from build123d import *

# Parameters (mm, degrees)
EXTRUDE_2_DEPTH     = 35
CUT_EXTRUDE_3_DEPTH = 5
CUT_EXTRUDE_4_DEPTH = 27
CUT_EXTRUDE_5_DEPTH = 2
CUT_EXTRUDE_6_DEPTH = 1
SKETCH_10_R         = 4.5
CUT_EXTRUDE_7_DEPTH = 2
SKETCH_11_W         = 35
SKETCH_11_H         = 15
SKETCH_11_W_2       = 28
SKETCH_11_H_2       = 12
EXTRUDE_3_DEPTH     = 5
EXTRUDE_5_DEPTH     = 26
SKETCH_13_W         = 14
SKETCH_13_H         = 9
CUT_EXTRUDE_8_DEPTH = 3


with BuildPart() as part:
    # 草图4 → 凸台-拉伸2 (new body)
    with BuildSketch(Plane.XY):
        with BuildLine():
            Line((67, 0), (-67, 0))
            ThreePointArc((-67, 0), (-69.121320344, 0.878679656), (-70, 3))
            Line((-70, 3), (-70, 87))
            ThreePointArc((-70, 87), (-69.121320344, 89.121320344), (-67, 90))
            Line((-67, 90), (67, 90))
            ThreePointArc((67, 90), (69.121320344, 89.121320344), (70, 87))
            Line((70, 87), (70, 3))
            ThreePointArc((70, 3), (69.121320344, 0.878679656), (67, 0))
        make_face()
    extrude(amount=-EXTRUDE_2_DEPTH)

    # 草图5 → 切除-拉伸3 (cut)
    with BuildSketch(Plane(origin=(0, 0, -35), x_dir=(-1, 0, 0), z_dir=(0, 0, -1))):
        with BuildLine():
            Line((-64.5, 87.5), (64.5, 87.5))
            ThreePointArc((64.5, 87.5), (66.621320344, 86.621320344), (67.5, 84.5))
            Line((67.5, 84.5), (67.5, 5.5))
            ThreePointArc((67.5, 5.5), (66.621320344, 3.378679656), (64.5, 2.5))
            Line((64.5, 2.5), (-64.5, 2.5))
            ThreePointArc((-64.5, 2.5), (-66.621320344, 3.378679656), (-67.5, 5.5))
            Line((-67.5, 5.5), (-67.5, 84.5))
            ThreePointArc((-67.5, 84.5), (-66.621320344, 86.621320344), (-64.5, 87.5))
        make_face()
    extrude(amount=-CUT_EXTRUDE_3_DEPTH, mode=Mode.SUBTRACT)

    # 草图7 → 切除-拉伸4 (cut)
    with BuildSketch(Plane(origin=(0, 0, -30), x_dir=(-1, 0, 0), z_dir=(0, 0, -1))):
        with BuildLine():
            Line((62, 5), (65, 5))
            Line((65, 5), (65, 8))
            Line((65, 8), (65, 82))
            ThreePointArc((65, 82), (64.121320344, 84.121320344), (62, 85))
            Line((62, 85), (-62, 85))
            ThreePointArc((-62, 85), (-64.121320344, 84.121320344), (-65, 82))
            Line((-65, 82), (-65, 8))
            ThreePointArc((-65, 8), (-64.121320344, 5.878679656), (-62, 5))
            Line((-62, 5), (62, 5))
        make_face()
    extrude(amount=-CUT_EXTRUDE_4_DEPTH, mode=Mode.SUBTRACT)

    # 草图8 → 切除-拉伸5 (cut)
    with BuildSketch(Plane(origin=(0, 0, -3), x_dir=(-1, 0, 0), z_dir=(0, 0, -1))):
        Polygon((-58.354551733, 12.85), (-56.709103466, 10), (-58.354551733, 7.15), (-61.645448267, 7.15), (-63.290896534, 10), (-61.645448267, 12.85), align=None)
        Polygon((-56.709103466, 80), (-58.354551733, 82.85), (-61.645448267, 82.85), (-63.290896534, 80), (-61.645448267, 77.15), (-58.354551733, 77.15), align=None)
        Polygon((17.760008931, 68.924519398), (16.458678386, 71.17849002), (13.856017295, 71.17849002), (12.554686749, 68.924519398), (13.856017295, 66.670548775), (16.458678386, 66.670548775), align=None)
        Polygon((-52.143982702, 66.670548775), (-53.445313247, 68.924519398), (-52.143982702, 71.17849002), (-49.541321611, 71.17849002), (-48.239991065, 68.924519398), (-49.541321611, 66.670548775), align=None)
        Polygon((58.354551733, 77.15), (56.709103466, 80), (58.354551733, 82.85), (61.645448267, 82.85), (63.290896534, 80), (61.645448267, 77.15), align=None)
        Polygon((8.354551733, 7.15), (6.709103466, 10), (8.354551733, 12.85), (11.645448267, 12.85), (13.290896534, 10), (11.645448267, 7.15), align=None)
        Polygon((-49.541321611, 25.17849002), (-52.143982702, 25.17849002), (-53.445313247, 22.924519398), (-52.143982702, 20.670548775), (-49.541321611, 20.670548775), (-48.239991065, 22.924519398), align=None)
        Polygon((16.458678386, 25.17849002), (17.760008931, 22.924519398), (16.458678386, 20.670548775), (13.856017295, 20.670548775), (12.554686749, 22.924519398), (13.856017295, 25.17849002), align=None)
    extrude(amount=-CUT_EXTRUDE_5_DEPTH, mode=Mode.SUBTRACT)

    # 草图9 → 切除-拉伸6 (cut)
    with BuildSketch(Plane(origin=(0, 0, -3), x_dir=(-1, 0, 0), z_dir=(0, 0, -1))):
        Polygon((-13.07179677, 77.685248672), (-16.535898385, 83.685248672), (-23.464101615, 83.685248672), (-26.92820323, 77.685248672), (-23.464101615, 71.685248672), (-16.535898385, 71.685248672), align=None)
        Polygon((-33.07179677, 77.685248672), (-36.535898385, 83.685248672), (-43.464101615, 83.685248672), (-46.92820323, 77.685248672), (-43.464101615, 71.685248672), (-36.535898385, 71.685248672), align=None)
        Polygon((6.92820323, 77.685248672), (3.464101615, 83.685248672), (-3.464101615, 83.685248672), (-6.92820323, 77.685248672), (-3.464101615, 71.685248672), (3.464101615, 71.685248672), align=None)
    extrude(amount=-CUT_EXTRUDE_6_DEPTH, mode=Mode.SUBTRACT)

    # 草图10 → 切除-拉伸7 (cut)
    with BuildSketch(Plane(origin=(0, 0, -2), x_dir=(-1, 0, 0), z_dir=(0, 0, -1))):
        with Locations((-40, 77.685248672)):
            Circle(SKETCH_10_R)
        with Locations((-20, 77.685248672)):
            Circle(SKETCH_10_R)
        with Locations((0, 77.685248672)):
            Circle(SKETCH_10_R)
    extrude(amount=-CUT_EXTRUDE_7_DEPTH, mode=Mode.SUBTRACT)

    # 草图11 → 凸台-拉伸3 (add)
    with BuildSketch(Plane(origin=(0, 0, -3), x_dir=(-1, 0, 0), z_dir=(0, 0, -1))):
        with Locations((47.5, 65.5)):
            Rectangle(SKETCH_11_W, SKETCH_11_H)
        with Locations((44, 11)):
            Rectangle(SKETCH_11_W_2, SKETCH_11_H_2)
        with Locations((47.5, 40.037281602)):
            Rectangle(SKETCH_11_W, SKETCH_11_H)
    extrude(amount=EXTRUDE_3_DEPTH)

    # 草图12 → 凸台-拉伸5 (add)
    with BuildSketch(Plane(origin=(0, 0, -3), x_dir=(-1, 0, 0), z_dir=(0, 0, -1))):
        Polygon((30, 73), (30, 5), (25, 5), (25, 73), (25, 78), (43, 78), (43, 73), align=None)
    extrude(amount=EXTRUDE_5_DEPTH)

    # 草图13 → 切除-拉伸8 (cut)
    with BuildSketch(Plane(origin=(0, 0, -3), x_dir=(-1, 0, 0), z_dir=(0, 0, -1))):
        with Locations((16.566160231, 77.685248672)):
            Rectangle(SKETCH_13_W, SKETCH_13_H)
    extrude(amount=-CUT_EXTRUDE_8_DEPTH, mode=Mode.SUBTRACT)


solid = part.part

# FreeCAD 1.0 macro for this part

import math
import FreeCAD as App
import Part
import Sketcher
Q = App.Units.Quantity

doc = App.newDocument("Part")
body = doc.addObject("PartDesign::Body", "Body")

sketch1 = body.newObject("Sketcher::SketchObject", "Sketch")
sketch1.AttachmentSupport = (doc.getObject("XY_Plane"), [""])
sketch1.MapMode = "FlatFace"
sketch1.addGeometry([
    Part.LineSegment(App.Vector(-67, 0, 0), App.Vector(67, 0, 0)),
    Part.ArcOfCircle(Part.Circle(App.Vector(67, 3, 0), App.Vector(0, 0, 1), 3), math.radians(-90), math.radians(0)),
    Part.LineSegment(App.Vector(70, 3, 0), App.Vector(70, 87, 0)),
    Part.ArcOfCircle(Part.Circle(App.Vector(67, 87, 0), App.Vector(0, 0, 1), 3), math.radians(0), math.radians(90)),
    Part.LineSegment(App.Vector(67, 90, 0), App.Vector(-67, 90, 0)),
    Part.ArcOfCircle(Part.Circle(App.Vector(-67, 87, 0), App.Vector(0, 0, 1), 3), math.radians(90), math.radians(180)),
    Part.LineSegment(App.Vector(-70, 87, 0), App.Vector(-70, 3, 0)),
    Part.ArcOfCircle(Part.Circle(App.Vector(-67, 3, 0), App.Vector(0, 0, 1), 3), math.radians(180), math.radians(270)),
], False)
sketch1.addConstraint([
    Sketcher.Constraint("Tangent", 0, 2, 1, 1),
    Sketcher.Constraint("Tangent", 1, 2, 2, 1),
    Sketcher.Constraint("Tangent", 2, 2, 3, 1),
    Sketcher.Constraint("Tangent", 3, 2, 4, 1),
    Sketcher.Constraint("Tangent", 4, 2, 5, 1),
    Sketcher.Constraint("Tangent", 5, 2, 6, 1),
    Sketcher.Constraint("Tangent", 6, 2, 7, 1),
    Sketcher.Constraint("Tangent", 7, 2, 0, 1),
    Sketcher.Constraint("Horizontal", 0),
    Sketcher.Constraint("Vertical", 2),
    Sketcher.Constraint("Horizontal", 4),
    Sketcher.Constraint("Vertical", 6),
    Sketcher.Constraint("Equal", 1, 3),
    Sketcher.Constraint("Equal", 3, 5),
    Sketcher.Constraint("Equal", 5, 7),
    Sketcher.Constraint("Symmetric", 0, 2, 7, 2, -1, 1),
    Sketcher.Constraint("Radius", 1, 3.0),
    Sketcher.Constraint("DistanceX", 0, 1, 0, 2, 134.0),
    Sketcher.Constraint("DistanceY", 2, 1, 2, 2, 84.0),
])
pad1 = body.newObject("PartDesign::Pad", "Pad")
pad1.Profile = sketch1
pad1.Length = 35
pad1.Reversed = True

sketch2 = body.newObject("Sketcher::SketchObject", "Sketch001")
sketch2.AttachmentSupport = (doc.getObject("XY_Plane"), [""])
sketch2.MapMode = "FlatFace"
sketch2.AttachmentOffset = App.Placement(App.Vector(0, 0, -35), App.Rotation())
sketch2.addGeometry([
    Part.LineSegment(App.Vector(-64.5, 87.5, 0), App.Vector(64.5, 87.5, 0)),
    Part.ArcOfCircle(Part.Circle(App.Vector(64.5, 84.5, 0), App.Vector(0, 0, 1), 3), math.radians(0), math.radians(90)),
    Part.LineSegment(App.Vector(67.5, 84.5, 0), App.Vector(67.5, 5.5, 0)),
    Part.ArcOfCircle(Part.Circle(App.Vector(64.5, 5.5, 0), App.Vector(0, 0, 1), 3), math.radians(-90), math.radians(0)),
    Part.LineSegment(App.Vector(64.5, 2.5, 0), App.Vector(-64.5, 2.5, 0)),
    Part.ArcOfCircle(Part.Circle(App.Vector(-64.5, 5.5, 0), App.Vector(0, 0, 1), 3), math.radians(180), math.radians(270)),
    Part.LineSegment(App.Vector(-67.5, 5.5, 0), App.Vector(-67.5, 84.5, 0)),
    Part.ArcOfCircle(Part.Circle(App.Vector(-64.5, 84.5, 0), App.Vector(0, 0, 1), 3), math.radians(90), math.radians(180)),
], False)
sketch2.addConstraint([
    Sketcher.Constraint("Tangent", 0, 2, 1, 2),
    Sketcher.Constraint("Tangent", 1, 1, 2, 1),
    Sketcher.Constraint("Tangent", 2, 2, 3, 2),
    Sketcher.Constraint("Tangent", 3, 1, 4, 1),
    Sketcher.Constraint("Tangent", 4, 2, 5, 2),
    Sketcher.Constraint("Tangent", 5, 1, 6, 1),
    Sketcher.Constraint("Tangent", 6, 2, 7, 2),
    Sketcher.Constraint("Tangent", 7, 1, 0, 1),
    Sketcher.Constraint("Horizontal", 0),
    Sketcher.Constraint("Vertical", 2),
    Sketcher.Constraint("Horizontal", 4),
    Sketcher.Constraint("Vertical", 6),
    Sketcher.Constraint("Equal", 1, 3),
    Sketcher.Constraint("Equal", 3, 5),
    Sketcher.Constraint("Equal", 5, 7),
    Sketcher.Constraint("Radius", 1, 3.0),
    Sketcher.Constraint("DistanceX", 0, 1, 0, 2, 129.0),
    Sketcher.Constraint("DistanceY", 2, 2, 2, 1, 79.0),
    Sketcher.Constraint("DistanceX", -1, 1, 1, 3, 64.5),
    Sketcher.Constraint("DistanceY", -1, 1, 1, 3, 84.5),
])
pocket1 = body.newObject("PartDesign::Pocket", "Pocket")
pocket1.Profile = sketch2
pocket1.Length = 5
pocket1.Reversed = True

sketch3 = body.newObject("Sketcher::SketchObject", "Sketch002")
sketch3.AttachmentSupport = (doc.getObject("XY_Plane"), [""])
sketch3.MapMode = "FlatFace"
sketch3.AttachmentOffset = App.Placement(App.Vector(0, 0, -30), App.Rotation())
sketch3.addGeometry([
    Part.LineSegment(App.Vector(-65, 5, 0), App.Vector(-65, 82, 0)),
    Part.ArcOfCircle(Part.Circle(App.Vector(-62, 82, 0), App.Vector(0, 0, 1), 3), math.radians(90), math.radians(180)),
    Part.LineSegment(App.Vector(-62, 85, 0), App.Vector(62, 85, 0)),
    Part.ArcOfCircle(Part.Circle(App.Vector(62, 82, 0), App.Vector(0, 0, 1), 3), math.radians(0), math.radians(90)),
    Part.LineSegment(App.Vector(65, 82, 0), App.Vector(65, 8, 0)),
    Part.ArcOfCircle(Part.Circle(App.Vector(62, 8, 0), App.Vector(0, 0, 1), 3), math.radians(-90), math.radians(0)),
    Part.LineSegment(App.Vector(62, 5, 0), App.Vector(-65, 5, 0)),
], False)
sketch3.addConstraint([
    Sketcher.Constraint("Tangent", 0, 2, 1, 2),
    Sketcher.Constraint("Tangent", 1, 1, 2, 1),
    Sketcher.Constraint("Tangent", 2, 2, 3, 2),
    Sketcher.Constraint("Tangent", 3, 1, 4, 1),
    Sketcher.Constraint("Tangent", 4, 2, 5, 2),
    Sketcher.Constraint("Tangent", 5, 1, 6, 1),
    Sketcher.Constraint("Coincident", 6, 2, 0, 1),
    Sketcher.Constraint("Vertical", 0),
    Sketcher.Constraint("Horizontal", 2),
    Sketcher.Constraint("Vertical", 4),
    Sketcher.Constraint("Horizontal", 6),
    Sketcher.Constraint("Equal", 1, 3),
    Sketcher.Constraint("Equal", 3, 5),
    Sketcher.Constraint("Radius", 1, 3.0),
    Sketcher.Constraint("DistanceX", 2, 1, 2, 2, 124.0),
    Sketcher.Constraint("DistanceY", 0, 1, 0, 2, 77.0),
    Sketcher.Constraint("DistanceX", 1, 3, -1, 1, 62.0),
    Sketcher.Constraint("DistanceY", -1, 1, 1, 3, 82.0),
])
pocket2 = body.newObject("PartDesign::Pocket", "Pocket001")
pocket2.Profile = sketch3
pocket2.Length = 27
pocket2.Reversed = True

sketch4 = body.newObject("Sketcher::SketchObject", "Sketch003")
sketch4.AttachmentSupport = (doc.getObject("XY_Plane"), [""])
sketch4.MapMode = "FlatFace"
sketch4.AttachmentOffset = App.Placement(App.Vector(0, 0, -3), App.Rotation())
sketch4.addGeometry([
    Part.LineSegment(App.Vector(56.7, 10, 0), App.Vector(58.4, 12.8, 0)),
    Part.LineSegment(App.Vector(58.4, 12.8, 0), App.Vector(61.6, 12.8, 0)),
    Part.LineSegment(App.Vector(61.6, 12.8, 0), App.Vector(63.3, 10, 0)),
    Part.LineSegment(App.Vector(63.3, 10, 0), App.Vector(61.6, 7.2, 0)),
    Part.LineSegment(App.Vector(61.6, 7.2, 0), App.Vector(58.4, 7.2, 0)),
    Part.LineSegment(App.Vector(58.4, 7.2, 0), App.Vector(56.7, 10, 0)),
    Part.LineSegment(App.Vector(56.7, 80, 0), App.Vector(58.4, 82.8, 0)),
    Part.LineSegment(App.Vector(58.4, 82.8, 0), App.Vector(61.6, 82.8, 0)),
    Part.LineSegment(App.Vector(61.6, 82.8, 0), App.Vector(63.3, 80, 0)),
    Part.LineSegment(App.Vector(63.3, 80, 0), App.Vector(61.6, 77.2, 0)),
    Part.LineSegment(App.Vector(61.6, 77.2, 0), App.Vector(58.4, 77.2, 0)),
    Part.LineSegment(App.Vector(58.4, 77.2, 0), App.Vector(56.7, 80, 0)),
    Part.LineSegment(App.Vector(-17.8, 68.9, 0), App.Vector(-16.5, 71.2, 0)),
    Part.LineSegment(App.Vector(-16.5, 71.2, 0), App.Vector(-13.9, 71.2, 0)),
    Part.LineSegment(App.Vector(-13.9, 71.2, 0), App.Vector(-12.6, 68.9, 0)),
    Part.LineSegment(App.Vector(-12.6, 68.9, 0), App.Vector(-13.9, 66.7, 0)),
    Part.LineSegment(App.Vector(-13.9, 66.7, 0), App.Vector(-16.5, 66.7, 0)),
    Part.LineSegment(App.Vector(-16.5, 66.7, 0), App.Vector(-17.8, 68.9, 0)),
    Part.LineSegment(App.Vector(53.4, 68.9, 0), App.Vector(52.1, 66.7, 0)),
    Part.LineSegment(App.Vector(52.1, 66.7, 0), App.Vector(49.5, 66.7, 0)),
    Part.LineSegment(App.Vector(49.5, 66.7, 0), App.Vector(48.2, 68.9, 0)),
    Part.LineSegment(App.Vector(48.2, 68.9, 0), App.Vector(49.5, 71.2, 0)),
    Part.LineSegment(App.Vector(49.5, 71.2, 0), App.Vector(52.1, 71.2, 0)),
    Part.LineSegment(App.Vector(52.1, 71.2, 0), App.Vector(53.4, 68.9, 0)),
    Part.LineSegment(App.Vector(-56.7, 80, 0), App.Vector(-58.4, 77.2, 0)),
    Part.LineSegment(App.Vector(-58.4, 77.2, 0), App.Vector(-61.6, 77.2, 0)),
    Part.LineSegment(App.Vector(-61.6, 77.2, 0), App.Vector(-63.3, 80, 0)),
    Part.LineSegment(App.Vector(-63.3, 80, 0), App.Vector(-61.6, 82.8, 0)),
    Part.LineSegment(App.Vector(-61.6, 82.8, 0), App.Vector(-58.4, 82.8, 0)),
    Part.LineSegment(App.Vector(-58.4, 82.8, 0), App.Vector(-56.7, 80, 0)),
    Part.LineSegment(App.Vector(-6.7, 10, 0), App.Vector(-8.4, 7.2, 0)),
    Part.LineSegment(App.Vector(-8.4, 7.2, 0), App.Vector(-11.6, 7.2, 0)),
    Part.LineSegment(App.Vector(-11.6, 7.2, 0), App.Vector(-13.3, 10, 0)),
    Part.LineSegment(App.Vector(-13.3, 10, 0), App.Vector(-11.6, 12.8, 0)),
    Part.LineSegment(App.Vector(-11.6, 12.8, 0), App.Vector(-8.4, 12.8, 0)),
    Part.LineSegment(App.Vector(-8.4, 12.8, 0), App.Vector(-6.7, 10, 0)),
    Part.LineSegment(App.Vector(49.5, 25.2, 0), App.Vector(52.1, 25.2, 0)),
    Part.LineSegment(App.Vector(52.1, 25.2, 0), App.Vector(53.4, 22.9, 0)),
    Part.LineSegment(App.Vector(53.4, 22.9, 0), App.Vector(52.1, 20.7, 0)),
    Part.LineSegment(App.Vector(52.1, 20.7, 0), App.Vector(49.5, 20.7, 0)),
    Part.LineSegment(App.Vector(49.5, 20.7, 0), App.Vector(48.2, 22.9, 0)),
    Part.LineSegment(App.Vector(48.2, 22.9, 0), App.Vector(49.5, 25.2, 0)),
    Part.LineSegment(App.Vector(-17.8, 22.9, 0), App.Vector(-16.5, 25.2, 0)),
    Part.LineSegment(App.Vector(-16.5, 25.2, 0), App.Vector(-13.9, 25.2, 0)),
    Part.LineSegment(App.Vector(-13.9, 25.2, 0), App.Vector(-12.6, 22.9, 0)),
    Part.LineSegment(App.Vector(-12.6, 22.9, 0), App.Vector(-13.9, 20.7, 0)),
    Part.LineSegment(App.Vector(-13.9, 20.7, 0), App.Vector(-16.5, 20.7, 0)),
    Part.LineSegment(App.Vector(-16.5, 20.7, 0), App.Vector(-17.8, 22.9, 0)),
], False)
sketch4.addConstraint([
    Sketcher.Constraint("Coincident", 0, 2, 1, 1),
    Sketcher.Constraint("Coincident", 1, 2, 2, 1),
    Sketcher.Constraint("Coincident", 2, 2, 3, 1),
    Sketcher.Constraint("Coincident", 3, 2, 4, 1),
    Sketcher.Constraint("Coincident", 4, 2, 5, 1),
    Sketcher.Constraint("Coincident", 5, 2, 0, 1),
    Sketcher.Constraint("Coincident", 6, 2, 7, 1),
    Sketcher.Constraint("Coincident", 7, 2, 8, 1),
    Sketcher.Constraint("Coincident", 8, 2, 9, 1),
    Sketcher.Constraint("Coincident", 9, 2, 10, 1),
    Sketcher.Constraint("Coincident", 10, 2, 11, 1),
    Sketcher.Constraint("Coincident", 11, 2, 6, 1),
    Sketcher.Constraint("Coincident", 12, 2, 13, 1),
    Sketcher.Constraint("Coincident", 13, 2, 14, 1),
    Sketcher.Constraint("Coincident", 14, 2, 15, 1),
    Sketcher.Constraint("Coincident", 15, 2, 16, 1),
    Sketcher.Constraint("Coincident", 16, 2, 17, 1),
    Sketcher.Constraint("Coincident", 17, 2, 12, 1),
    Sketcher.Constraint("Coincident", 18, 2, 19, 1),
    Sketcher.Constraint("Coincident", 19, 2, 20, 1),
    Sketcher.Constraint("Coincident", 20, 2, 21, 1),
    Sketcher.Constraint("Coincident", 21, 2, 22, 1),
    Sketcher.Constraint("Coincident", 22, 2, 23, 1),
    Sketcher.Constraint("Coincident", 23, 2, 18, 1),
    Sketcher.Constraint("Coincident", 24, 2, 25, 1),
    Sketcher.Constraint("Coincident", 25, 2, 26, 1),
    Sketcher.Constraint("Coincident", 26, 2, 27, 1),
    Sketcher.Constraint("Coincident", 27, 2, 28, 1),
    Sketcher.Constraint("Coincident", 28, 2, 29, 1),
    Sketcher.Constraint("Coincident", 29, 2, 24, 1),
    Sketcher.Constraint("Coincident", 30, 2, 31, 1),
    Sketcher.Constraint("Coincident", 31, 2, 32, 1),
    Sketcher.Constraint("Coincident", 32, 2, 33, 1),
    Sketcher.Constraint("Coincident", 33, 2, 34, 1),
    Sketcher.Constraint("Coincident", 34, 2, 35, 1),
    Sketcher.Constraint("Coincident", 35, 2, 30, 1),
    Sketcher.Constraint("Coincident", 36, 2, 37, 1),
    Sketcher.Constraint("Coincident", 37, 2, 38, 1),
    Sketcher.Constraint("Coincident", 38, 2, 39, 1),
    Sketcher.Constraint("Coincident", 39, 2, 40, 1),
    Sketcher.Constraint("Coincident", 40, 2, 41, 1),
    Sketcher.Constraint("Coincident", 41, 2, 36, 1),
    Sketcher.Constraint("Coincident", 42, 2, 43, 1),
    Sketcher.Constraint("Coincident", 43, 2, 44, 1),
    Sketcher.Constraint("Coincident", 44, 2, 45, 1),
    Sketcher.Constraint("Coincident", 45, 2, 46, 1),
    Sketcher.Constraint("Coincident", 46, 2, 47, 1),
    Sketcher.Constraint("Coincident", 47, 2, 42, 1),
    Sketcher.Constraint("Horizontal", 1),
    Sketcher.Constraint("Horizontal", 4),
    Sketcher.Constraint("Horizontal", 7),
    Sketcher.Constraint("Horizontal", 10),
    Sketcher.Constraint("Horizontal", 13),
    Sketcher.Constraint("Horizontal", 16),
    Sketcher.Constraint("Horizontal", 19),
    Sketcher.Constraint("Horizontal", 22),
    Sketcher.Constraint("Horizontal", 25),
    Sketcher.Constraint("Horizontal", 28),
    Sketcher.Constraint("Horizontal", 31),
    Sketcher.Constraint("Horizontal", 34),
    Sketcher.Constraint("Horizontal", 36),
    Sketcher.Constraint("Horizontal", 39),
    Sketcher.Constraint("Horizontal", 43),
    Sketcher.Constraint("Horizontal", 46),
    Sketcher.Constraint("Symmetric", 10, 2, 24, 2, -2),
    Sketcher.Constraint("Symmetric", 8, 2, 26, 2, -2),
    Sketcher.Constraint("Symmetric", 7, 2, 27, 2, -2),
    Sketcher.Constraint("Symmetric", 11, 2, 29, 2, -2),
    Sketcher.Constraint("Parallel", 0, 3),
    Sketcher.Constraint("Parallel", 2, 5),
    Sketcher.Constraint("Parallel", 3, 6),
    Sketcher.Constraint("Parallel", 5, 8),
    Sketcher.Constraint("Parallel", 6, 9),
    Sketcher.Constraint("Parallel", 8, 11),
    Sketcher.Constraint("Parallel", 9, 12),
    Sketcher.Constraint("Parallel", 11, 14),
    Sketcher.Constraint("Parallel", 12, 15),
    Sketcher.Constraint("Parallel", 14, 17),
    Sketcher.Constraint("Parallel", 15, 18),
    Sketcher.Constraint("Parallel", 17, 20),
    Sketcher.Constraint("Parallel", 18, 21),
    Sketcher.Constraint("Parallel", 20, 23),
    Sketcher.Constraint("Parallel", 21, 24),
    Sketcher.Constraint("Parallel", 23, 26),
    Sketcher.Constraint("Parallel", 26, 29),
    Sketcher.Constraint("Parallel", 27, 30),
    Sketcher.Constraint("Parallel", 29, 32),
    Sketcher.Constraint("Parallel", 30, 33),
    Sketcher.Constraint("Parallel", 32, 35),
    Sketcher.Constraint("Parallel", 35, 37),
    Sketcher.Constraint("Parallel", 33, 38),
    Sketcher.Constraint("Parallel", 37, 40),
    Sketcher.Constraint("Parallel", 38, 41),
    Sketcher.Constraint("Parallel", 41, 42),
    Sketcher.Constraint("Parallel", 40, 44),
    Sketcher.Constraint("Parallel", 42, 45),
    Sketcher.Constraint("Parallel", 44, 47),
    Sketcher.Constraint("Horizontal", 2, 2, 5, 2),
    Sketcher.Constraint("Horizontal", 8, 2, 11, 2),
    Sketcher.Constraint("Horizontal", 14, 2, 17, 2),
    Sketcher.Constraint("Horizontal", 16, 2, 18, 2),
    Sketcher.Constraint("Horizontal", 17, 2, 20, 2),
    Sketcher.Constraint("Horizontal", 13, 2, 21, 2),
    Sketcher.Constraint("Horizontal", 20, 2, 23, 2),
    Sketcher.Constraint("Horizontal", 4, 2, 30, 2),
    Sketcher.Constraint("Horizontal", 5, 2, 32, 2),
    Sketcher.Constraint("Horizontal", 1, 2, 33, 2),
    Sketcher.Constraint("Horizontal", 32, 2, 35, 2),
    Sketcher.Constraint("Horizontal", 37, 2, 40, 2),
    Sketcher.Constraint("Horizontal", 41, 2, 42, 2),
    Sketcher.Constraint("Horizontal", 40, 2, 44, 2),
    Sketcher.Constraint("Horizontal", 39, 2, 45, 2),
    Sketcher.Constraint("Horizontal", 44, 2, 47, 2),
    Sketcher.Constraint("Vertical", 1, 2, 3, 2),
    Sketcher.Constraint("Vertical", 4, 2, 6, 2),
    Sketcher.Constraint("Vertical", 3, 2, 7, 2),
    Sketcher.Constraint("Vertical", 2, 2, 8, 2),
    Sketcher.Constraint("Vertical", 7, 2, 9, 2),
    Sketcher.Constraint("Vertical", 13, 2, 15, 2),
    Sketcher.Constraint("Vertical", 22, 2, 36, 2),
    Sketcher.Constraint("Vertical", 23, 2, 37, 2),
    Sketcher.Constraint("Vertical", 36, 2, 38, 2),
    Sketcher.Constraint("Vertical", 21, 2, 39, 2),
    Sketcher.Constraint("Vertical", 16, 2, 42, 2),
    Sketcher.Constraint("Vertical", 15, 2, 43, 2),
    Sketcher.Constraint("Equal", 16, 19),
    Sketcher.Constraint("Equal", 28, 31),
    Sketcher.Constraint("Angle", 0, Q("60 deg")),
    Sketcher.Constraint("DistanceY", -1, 1, 2, 2, 10.0),
    Sketcher.Constraint("DistanceY", -1, 1, 8, 2, 80.0),
    Sketcher.Constraint("DistanceY", 3, 2, 1, 2, 5.7),
    Sketcher.Constraint("DistanceX", 13, 1, 13, 2, 2.602661),
    Sketcher.Constraint("Distance", 12, 2.602661),
    Sketcher.Constraint("DistanceX", 1, 1, 1, 2, 3.290897),
    Sketcher.Constraint("DistanceX", -1, 1, 0, 2, 58.354552),
    Sketcher.Constraint("DistanceX", 12, 2, -1, 1, 16.458678),
    Sketcher.Constraint("DistanceY", -1, 1, 12, 2, 71.17849),
    Sketcher.Constraint("DistanceX", -1, 1, 19, 2, 49.541322),
    Sketcher.Constraint("DistanceX", 30, 2, -1, 1, 8.354552),
    Sketcher.Constraint("DistanceY", -1, 1, 36, 2, 25.17849),
])
pocket3 = body.newObject("PartDesign::Pocket", "Pocket002")
pocket3.Profile = sketch4
pocket3.Length = 2
pocket3.Reversed = True

sketch5 = body.newObject("Sketcher::SketchObject", "Sketch004")
sketch5.AttachmentSupport = (doc.getObject("XY_Plane"), [""])
sketch5.MapMode = "FlatFace"
sketch5.AttachmentOffset = App.Placement(App.Vector(0, 0, -3), App.Rotation())
sketch5.addGeometry([
    Part.LineSegment(App.Vector(13, 78, 0), App.Vector(17, 84, 0)),
    Part.LineSegment(App.Vector(17, 84, 0), App.Vector(23, 84, 0)),
    Part.LineSegment(App.Vector(23, 84, 0), App.Vector(27, 78, 0)),
    Part.LineSegment(App.Vector(27, 78, 0), App.Vector(23, 72, 0)),
    Part.LineSegment(App.Vector(23, 72, 0), App.Vector(17, 72, 0)),
    Part.LineSegment(App.Vector(17, 72, 0), App.Vector(13, 78, 0)),
    Part.LineSegment(App.Vector(33, 78, 0), App.Vector(37, 84, 0)),
    Part.LineSegment(App.Vector(37, 84, 0), App.Vector(43, 84, 0)),
    Part.LineSegment(App.Vector(43, 84, 0), App.Vector(47, 78, 0)),
    Part.LineSegment(App.Vector(47, 78, 0), App.Vector(43, 72, 0)),
    Part.LineSegment(App.Vector(43, 72, 0), App.Vector(37, 72, 0)),
    Part.LineSegment(App.Vector(37, 72, 0), App.Vector(33, 78, 0)),
    Part.LineSegment(App.Vector(-7, 78, 0), App.Vector(-3, 84, 0)),
    Part.LineSegment(App.Vector(-3, 84, 0), App.Vector(3, 84, 0)),
    Part.LineSegment(App.Vector(3, 84, 0), App.Vector(7, 78, 0)),
    Part.LineSegment(App.Vector(7, 78, 0), App.Vector(3, 72, 0)),
    Part.LineSegment(App.Vector(3, 72, 0), App.Vector(-3, 72, 0)),
    Part.LineSegment(App.Vector(-3, 72, 0), App.Vector(-7, 78, 0)),
], False)
sketch5.addConstraint([
    Sketcher.Constraint("Coincident", 0, 2, 1, 1),
    Sketcher.Constraint("Coincident", 1, 2, 2, 1),
    Sketcher.Constraint("Coincident", 2, 2, 3, 1),
    Sketcher.Constraint("Coincident", 3, 2, 4, 1),
    Sketcher.Constraint("Coincident", 4, 2, 5, 1),
    Sketcher.Constraint("Coincident", 5, 2, 0, 1),
    Sketcher.Constraint("Coincident", 6, 2, 7, 1),
    Sketcher.Constraint("Coincident", 7, 2, 8, 1),
    Sketcher.Constraint("Coincident", 8, 2, 9, 1),
    Sketcher.Constraint("Coincident", 9, 2, 10, 1),
    Sketcher.Constraint("Coincident", 10, 2, 11, 1),
    Sketcher.Constraint("Coincident", 11, 2, 6, 1),
    Sketcher.Constraint("Coincident", 12, 2, 13, 1),
    Sketcher.Constraint("Coincident", 13, 2, 14, 1),
    Sketcher.Constraint("Coincident", 14, 2, 15, 1),
    Sketcher.Constraint("Coincident", 15, 2, 16, 1),
    Sketcher.Constraint("Coincident", 16, 2, 17, 1),
    Sketcher.Constraint("Coincident", 17, 2, 12, 1),
    Sketcher.Constraint("Horizontal", 1),
    Sketcher.Constraint("Horizontal", 4),
    Sketcher.Constraint("Horizontal", 7),
    Sketcher.Constraint("Horizontal", 10),
    Sketcher.Constraint("Horizontal", 13),
    Sketcher.Constraint("Horizontal", 16),
    Sketcher.Constraint("Symmetric", 14, 2, 17, 2, -2),
    Sketcher.Constraint("Parallel", 0, 3),
    Sketcher.Constraint("Parallel", 2, 5),
    Sketcher.Constraint("Parallel", 3, 6),
    Sketcher.Constraint("Parallel", 5, 8),
    Sketcher.Constraint("Parallel", 6, 9),
    Sketcher.Constraint("Parallel", 8, 11),
    Sketcher.Constraint("Parallel", 9, 12),
    Sketcher.Constraint("Parallel", 11, 14),
    Sketcher.Constraint("Parallel", 12, 15),
    Sketcher.Constraint("Parallel", 14, 17),
    Sketcher.Constraint("Horizontal", 2, 2, 5, 2),
    Sketcher.Constraint("Horizontal", 1, 2, 6, 2),
    Sketcher.Constraint("Horizontal", 5, 2, 8, 2),
    Sketcher.Constraint("Horizontal", 4, 2, 9, 2),
    Sketcher.Constraint("Horizontal", 8, 2, 11, 2),
    Sketcher.Constraint("Horizontal", 7, 2, 12, 2),
    Sketcher.Constraint("Horizontal", 11, 2, 14, 2),
    Sketcher.Constraint("Horizontal", 10, 2, 15, 2),
    Sketcher.Constraint("Vertical", 1, 2, 3, 2),
    Sketcher.Constraint("Vertical", 0, 2, 4, 2),
    Sketcher.Constraint("Equal", 4, 7),
    Sketcher.Constraint("Equal", 10, 13),
    Sketcher.Constraint("Angle", 0, Q("60 deg")),
    Sketcher.Constraint("DistanceY", 2, 2, 1, 2, 6.0),
    Sketcher.Constraint("DistanceX", 0, 2, 6, 2, 20.0),
    Sketcher.Constraint("DistanceX", 12, 2, 0, 2, 20.0),
    Sketcher.Constraint("DistanceX", -1, 1, 0, 2, 16.535898),
    Sketcher.Constraint("DistanceY", -1, 1, 0, 2, 83.685249),
])
pocket4 = body.newObject("PartDesign::Pocket", "Pocket003")
pocket4.Profile = sketch5
pocket4.Length = 1
pocket4.Reversed = True

sketch6 = body.newObject("Sketcher::SketchObject", "Sketch005")
sketch6.AttachmentSupport = (doc.getObject("XY_Plane"), [""])
sketch6.MapMode = "FlatFace"
sketch6.AttachmentOffset = App.Placement(App.Vector(0, 0, -2), App.Rotation())
sketch6.addGeometry([
    Part.Circle(App.Vector(40, 77.7, 0), App.Vector(0, 0, 1), 4.5),
    Part.Circle(App.Vector(20, 77.7, 0), App.Vector(0, 0, 1), 4.5),
    Part.Circle(App.Vector(0, 77.7, 0), App.Vector(0, 0, 1), 4.5),
], False)
sketch6.addConstraint([
    Sketcher.Constraint("Equal", 0, 1),
    Sketcher.Constraint("Equal", 1, 2),
    Sketcher.Constraint("PointOnObject", 2, 3, -2),
    Sketcher.Constraint("Horizontal", 0, 3, 1, 3),
    Sketcher.Constraint("Horizontal", 1, 3, 2, 3),
    Sketcher.Constraint("Diameter", 0, 9.0),
    Sketcher.Constraint("DistanceX", -1, 1, 0, 3, 40.0),
    Sketcher.Constraint("DistanceX", -1, 1, 1, 3, 20.0),
    Sketcher.Constraint("DistanceY", -1, 1, 0, 3, 77.685249),
])
pocket5 = body.newObject("PartDesign::Pocket", "Pocket004")
pocket5.Profile = sketch6
pocket5.Length = 2
pocket5.Reversed = True

sketch7 = body.newObject("Sketcher::SketchObject", "Sketch006")
sketch7.AttachmentSupport = (doc.getObject("XY_Plane"), [""])
sketch7.MapMode = "FlatFace"
sketch7.AttachmentOffset = App.Placement(App.Vector(0, 0, -3), App.Rotation())
sketch7.addGeometry([
    Part.LineSegment(App.Vector(-30, 73, 0), App.Vector(-30, 58, 0)),
    Part.LineSegment(App.Vector(-30, 58, 0), App.Vector(-65, 58, 0)),
    Part.LineSegment(App.Vector(-65, 58, 0), App.Vector(-65, 73, 0)),
    Part.LineSegment(App.Vector(-65, 73, 0), App.Vector(-30, 73, 0)),
    Part.LineSegment(App.Vector(-30, 17, 0), App.Vector(-30, 5, 0)),
    Part.LineSegment(App.Vector(-30, 5, 0), App.Vector(-58, 5, 0)),
    Part.LineSegment(App.Vector(-58, 5, 0), App.Vector(-58, 17, 0)),
    Part.LineSegment(App.Vector(-58, 17, 0), App.Vector(-30, 17, 0)),
    Part.LineSegment(App.Vector(-30, 48, 0), App.Vector(-30, 33, 0)),
    Part.LineSegment(App.Vector(-30, 33, 0), App.Vector(-65, 33, 0)),
    Part.LineSegment(App.Vector(-65, 33, 0), App.Vector(-65, 48, 0)),
    Part.LineSegment(App.Vector(-65, 48, 0), App.Vector(-30, 48, 0)),
], False)
sketch7.addConstraint([
    Sketcher.Constraint("Coincident", 0, 2, 1, 1),
    Sketcher.Constraint("Coincident", 1, 2, 2, 1),
    Sketcher.Constraint("Coincident", 2, 2, 3, 1),
    Sketcher.Constraint("Coincident", 3, 2, 0, 1),
    Sketcher.Constraint("Coincident", 4, 2, 5, 1),
    Sketcher.Constraint("Coincident", 5, 2, 6, 1),
    Sketcher.Constraint("Coincident", 6, 2, 7, 1),
    Sketcher.Constraint("Coincident", 7, 2, 4, 1),
    Sketcher.Constraint("Coincident", 8, 2, 9, 1),
    Sketcher.Constraint("Coincident", 9, 2, 10, 1),
    Sketcher.Constraint("Coincident", 10, 2, 11, 1),
    Sketcher.Constraint("Coincident", 11, 2, 8, 1),
    Sketcher.Constraint("Vertical", 0),
    Sketcher.Constraint("Horizontal", 1),
    Sketcher.Constraint("Vertical", 2),
    Sketcher.Constraint("Horizontal", 3),
    Sketcher.Constraint("Vertical", 4),
    Sketcher.Constraint("Horizontal", 5),
    Sketcher.Constraint("Vertical", 6),
    Sketcher.Constraint("Horizontal", 7),
    Sketcher.Constraint("Vertical", 8),
    Sketcher.Constraint("Horizontal", 9),
    Sketcher.Constraint("Vertical", 10),
    Sketcher.Constraint("Horizontal", 11),
    Sketcher.Constraint("Vertical", 3, 2, 4, 2),
    Sketcher.Constraint("Vertical", 7, 2, 8, 2),
    Sketcher.Constraint("Vertical", 2, 2, 9, 2),
    Sketcher.Constraint("Equal", 2, 8),
    Sketcher.Constraint("DistanceX", 1, 2, 1, 1, 35.0),
    Sketcher.Constraint("DistanceX", 5, 2, 5, 1, 28.0),
    Sketcher.Constraint("DistanceY", 0, 2, 0, 1, 15.0),
    Sketcher.Constraint("DistanceY", 4, 2, 4, 1, 12.0),
    Sketcher.Constraint("DistanceX", 0, 2, -1, 1, 30.0),
    Sketcher.Constraint("DistanceY", -1, 1, 0, 2, 58.0),
    Sketcher.Constraint("DistanceY", -1, 1, 4, 2, 5.0),
    Sketcher.Constraint("DistanceY", -1, 1, 8, 2, 32.537282),
])
pad2 = body.newObject("PartDesign::Pad", "Pad001")
pad2.Profile = sketch7
pad2.Length = 5
pad2.Reversed = True

sketch8 = body.newObject("Sketcher::SketchObject", "Sketch007")
sketch8.AttachmentSupport = (doc.getObject("XY_Plane"), [""])
sketch8.MapMode = "FlatFace"
sketch8.AttachmentOffset = App.Placement(App.Vector(0, 0, -3), App.Rotation())
sketch8.addGeometry([
    Part.LineSegment(App.Vector(-30, 5, 0), App.Vector(-30, 73, 0)),
    Part.LineSegment(App.Vector(-30, 73, 0), App.Vector(-43, 73, 0)),
    Part.LineSegment(App.Vector(-43, 73, 0), App.Vector(-43, 78, 0)),
    Part.LineSegment(App.Vector(-43, 78, 0), App.Vector(-25, 78, 0)),
    Part.LineSegment(App.Vector(-25, 78, 0), App.Vector(-25, 5, 0)),
    Part.LineSegment(App.Vector(-25, 5, 0), App.Vector(-30, 5, 0)),
], False)
sketch8.addConstraint([
    Sketcher.Constraint("Coincident", 0, 2, 1, 1),
    Sketcher.Constraint("Coincident", 1, 2, 2, 1),
    Sketcher.Constraint("Coincident", 2, 2, 3, 1),
    Sketcher.Constraint("Coincident", 3, 2, 4, 1),
    Sketcher.Constraint("Coincident", 4, 2, 5, 1),
    Sketcher.Constraint("Coincident", 5, 2, 0, 1),
    Sketcher.Constraint("Vertical", 0),
    Sketcher.Constraint("Horizontal", 1),
    Sketcher.Constraint("Vertical", 2),
    Sketcher.Constraint("Horizontal", 3),
    Sketcher.Constraint("Vertical", 4),
    Sketcher.Constraint("Horizontal", 5),
    Sketcher.Constraint("Equal", 5, 2),
    Sketcher.Constraint("DistanceX", 1, 2, 1, 1, 13.0),
    Sketcher.Constraint("DistanceX", 3, 1, 3, 2, 18.0),
    Sketcher.Constraint("DistanceY", 0, 1, 0, 2, 68.0),
    Sketcher.Constraint("DistanceX", 0, 2, -1, 1, 30.0),
    Sketcher.Constraint("DistanceY", -1, 1, 0, 2, 73.0),
])
pad3 = body.newObject("PartDesign::Pad", "Pad002")
pad3.Profile = sketch8
pad3.Length = 26
pad3.Reversed = True

sketch9 = body.newObject("Sketcher::SketchObject", "Sketch008")
sketch9.AttachmentSupport = (doc.getObject("XY_Plane"), [""])
sketch9.MapMode = "FlatFace"
sketch9.AttachmentOffset = App.Placement(App.Vector(0, 0, -3), App.Rotation())
sketch9.addGeometry([
    Part.LineSegment(App.Vector(-10, 82, 0), App.Vector(-10, 73, 0)),
    Part.LineSegment(App.Vector(-10, 73, 0), App.Vector(-24, 73, 0)),
    Part.LineSegment(App.Vector(-24, 73, 0), App.Vector(-24, 82, 0)),
    Part.LineSegment(App.Vector(-24, 82, 0), App.Vector(-10, 82, 0)),
], False)
sketch9.addConstraint([
    Sketcher.Constraint("Coincident", 0, 2, 1, 1),
    Sketcher.Constraint("Coincident", 1, 2, 2, 1),
    Sketcher.Constraint("Coincident", 2, 2, 3, 1),
    Sketcher.Constraint("Coincident", 3, 2, 0, 1),
    Sketcher.Constraint("Vertical", 0),
    Sketcher.Constraint("Horizontal", 1),
    Sketcher.Constraint("Vertical", 2),
    Sketcher.Constraint("Horizontal", 3),
    Sketcher.Constraint("DistanceX", 1, 2, 1, 1, 14.0),
    Sketcher.Constraint("DistanceY", 0, 2, 0, 1, 9.0),
    Sketcher.Constraint("DistanceX", 0, 2, -1, 1, 9.56616),
    Sketcher.Constraint("DistanceY", -1, 1, 0, 2, 73.185249),
])
pocket6 = body.newObject("PartDesign::Pocket", "Pocket005")
pocket6.Profile = sketch9
pocket6.Length = 3
pocket6.Reversed = True

doc.recompute()
